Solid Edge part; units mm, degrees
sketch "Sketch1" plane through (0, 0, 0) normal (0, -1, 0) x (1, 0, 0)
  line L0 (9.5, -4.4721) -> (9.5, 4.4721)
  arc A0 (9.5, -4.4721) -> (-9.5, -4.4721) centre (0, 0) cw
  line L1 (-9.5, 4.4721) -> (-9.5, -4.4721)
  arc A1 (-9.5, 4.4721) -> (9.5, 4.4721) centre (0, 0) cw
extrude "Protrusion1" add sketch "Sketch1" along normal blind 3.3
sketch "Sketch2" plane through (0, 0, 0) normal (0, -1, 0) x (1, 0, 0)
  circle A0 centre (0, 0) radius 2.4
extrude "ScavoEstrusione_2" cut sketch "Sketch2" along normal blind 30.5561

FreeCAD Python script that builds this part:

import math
import FreeCAD as App
import Part
import Sketcher
from FreeCAD import Vector
Q = App.Units.Quantity

doc = App.newDocument("Part")
body = doc.addObject("PartDesign::Body", "Body")

# Sketch on XZ plane
sketch1 = body.newObject("Sketcher::SketchObject", "Sketch")
sketch1.AttachmentSupport = (doc.getObject("XZ_Plane"), [""])
sketch1.MapMode = "FlatFace"
sketch1.addGeometry(Part.ArcOfCircle(Part.Circle(Vector(0, 0, 0), Vector(0, 0, 1), 10.499985), math.radians(-154.791412), math.radians(-25.208588)), False)
sketch1.addGeometry(Part.LineSegment(Vector(9.5, -4.4721, 0), Vector(9.5, 4.4721, 0)), False)
sketch1.addGeometry(Part.ArcOfCircle(Part.Circle(Vector(0, 0, 0), Vector(0, 0, 1), 10.499985), math.radians(25.208588), math.radians(154.791412)), False)
sketch1.addGeometry(Part.LineSegment(Vector(-9.5, 4.4721, 0), Vector(-9.5, -4.4721, 0)), False)
sketch1.addConstraint(Sketcher.Constraint("Coincident", 0, 2, 1, 1))
sketch1.addConstraint(Sketcher.Constraint("Coincident", 1, 2, 2, 1))
sketch1.addConstraint(Sketcher.Constraint("Coincident", 2, 2, 3, 1))
sketch1.addConstraint(Sketcher.Constraint("Coincident", 3, 2, 0, 1))
sketch1.addConstraint(Sketcher.Constraint("Vertical", 1))
sketch1.addConstraint(Sketcher.Constraint("Vertical", 3))
sketch1.addConstraint(Sketcher.Constraint("Coincident", 0, 3, -1, 1))
sketch1.addConstraint(Sketcher.Constraint("Coincident", 2, 3, -1, 1))
sketch1.addConstraint(Sketcher.Constraint("Equal", 0, 2))
sketch1.addConstraint(Sketcher.Constraint("Horizontal", 1, 2, 2, 2))
sketch1.addConstraint(Sketcher.Constraint("Radius", 0, Q("10.5 mm")))
sketch1.addConstraint(Sketcher.Constraint("DistanceX", 2, 2, 1, 2, Q("19 mm")))
pad1 = body.newObject("PartDesign::Pad", "Pad")
pad1.Profile = sketch1
pad1.Length = 3.3

# Sketch on XZ plane
sketch2 = body.newObject("Sketcher::SketchObject", "Sketch001")
sketch2.AttachmentSupport = (doc.getObject("XZ_Plane"), [""])
sketch2.MapMode = "FlatFace"
sketch2.addGeometry(Part.Circle(Vector(0, 0, 0), Vector(0, 0, 1), 2.4), False)
sketch2.addConstraint(Sketcher.Constraint("Coincident", 0, 3, -1, 1))
sketch2.addConstraint(Sketcher.Constraint("Diameter", 0, Q("4.8 mm")))
pocket1 = body.newObject("PartDesign::Pocket", "Pocket")
pocket1.Profile = sketch2
pocket1.Length = 30.5561
pocket1.Reversed = True

doc.recompute()
